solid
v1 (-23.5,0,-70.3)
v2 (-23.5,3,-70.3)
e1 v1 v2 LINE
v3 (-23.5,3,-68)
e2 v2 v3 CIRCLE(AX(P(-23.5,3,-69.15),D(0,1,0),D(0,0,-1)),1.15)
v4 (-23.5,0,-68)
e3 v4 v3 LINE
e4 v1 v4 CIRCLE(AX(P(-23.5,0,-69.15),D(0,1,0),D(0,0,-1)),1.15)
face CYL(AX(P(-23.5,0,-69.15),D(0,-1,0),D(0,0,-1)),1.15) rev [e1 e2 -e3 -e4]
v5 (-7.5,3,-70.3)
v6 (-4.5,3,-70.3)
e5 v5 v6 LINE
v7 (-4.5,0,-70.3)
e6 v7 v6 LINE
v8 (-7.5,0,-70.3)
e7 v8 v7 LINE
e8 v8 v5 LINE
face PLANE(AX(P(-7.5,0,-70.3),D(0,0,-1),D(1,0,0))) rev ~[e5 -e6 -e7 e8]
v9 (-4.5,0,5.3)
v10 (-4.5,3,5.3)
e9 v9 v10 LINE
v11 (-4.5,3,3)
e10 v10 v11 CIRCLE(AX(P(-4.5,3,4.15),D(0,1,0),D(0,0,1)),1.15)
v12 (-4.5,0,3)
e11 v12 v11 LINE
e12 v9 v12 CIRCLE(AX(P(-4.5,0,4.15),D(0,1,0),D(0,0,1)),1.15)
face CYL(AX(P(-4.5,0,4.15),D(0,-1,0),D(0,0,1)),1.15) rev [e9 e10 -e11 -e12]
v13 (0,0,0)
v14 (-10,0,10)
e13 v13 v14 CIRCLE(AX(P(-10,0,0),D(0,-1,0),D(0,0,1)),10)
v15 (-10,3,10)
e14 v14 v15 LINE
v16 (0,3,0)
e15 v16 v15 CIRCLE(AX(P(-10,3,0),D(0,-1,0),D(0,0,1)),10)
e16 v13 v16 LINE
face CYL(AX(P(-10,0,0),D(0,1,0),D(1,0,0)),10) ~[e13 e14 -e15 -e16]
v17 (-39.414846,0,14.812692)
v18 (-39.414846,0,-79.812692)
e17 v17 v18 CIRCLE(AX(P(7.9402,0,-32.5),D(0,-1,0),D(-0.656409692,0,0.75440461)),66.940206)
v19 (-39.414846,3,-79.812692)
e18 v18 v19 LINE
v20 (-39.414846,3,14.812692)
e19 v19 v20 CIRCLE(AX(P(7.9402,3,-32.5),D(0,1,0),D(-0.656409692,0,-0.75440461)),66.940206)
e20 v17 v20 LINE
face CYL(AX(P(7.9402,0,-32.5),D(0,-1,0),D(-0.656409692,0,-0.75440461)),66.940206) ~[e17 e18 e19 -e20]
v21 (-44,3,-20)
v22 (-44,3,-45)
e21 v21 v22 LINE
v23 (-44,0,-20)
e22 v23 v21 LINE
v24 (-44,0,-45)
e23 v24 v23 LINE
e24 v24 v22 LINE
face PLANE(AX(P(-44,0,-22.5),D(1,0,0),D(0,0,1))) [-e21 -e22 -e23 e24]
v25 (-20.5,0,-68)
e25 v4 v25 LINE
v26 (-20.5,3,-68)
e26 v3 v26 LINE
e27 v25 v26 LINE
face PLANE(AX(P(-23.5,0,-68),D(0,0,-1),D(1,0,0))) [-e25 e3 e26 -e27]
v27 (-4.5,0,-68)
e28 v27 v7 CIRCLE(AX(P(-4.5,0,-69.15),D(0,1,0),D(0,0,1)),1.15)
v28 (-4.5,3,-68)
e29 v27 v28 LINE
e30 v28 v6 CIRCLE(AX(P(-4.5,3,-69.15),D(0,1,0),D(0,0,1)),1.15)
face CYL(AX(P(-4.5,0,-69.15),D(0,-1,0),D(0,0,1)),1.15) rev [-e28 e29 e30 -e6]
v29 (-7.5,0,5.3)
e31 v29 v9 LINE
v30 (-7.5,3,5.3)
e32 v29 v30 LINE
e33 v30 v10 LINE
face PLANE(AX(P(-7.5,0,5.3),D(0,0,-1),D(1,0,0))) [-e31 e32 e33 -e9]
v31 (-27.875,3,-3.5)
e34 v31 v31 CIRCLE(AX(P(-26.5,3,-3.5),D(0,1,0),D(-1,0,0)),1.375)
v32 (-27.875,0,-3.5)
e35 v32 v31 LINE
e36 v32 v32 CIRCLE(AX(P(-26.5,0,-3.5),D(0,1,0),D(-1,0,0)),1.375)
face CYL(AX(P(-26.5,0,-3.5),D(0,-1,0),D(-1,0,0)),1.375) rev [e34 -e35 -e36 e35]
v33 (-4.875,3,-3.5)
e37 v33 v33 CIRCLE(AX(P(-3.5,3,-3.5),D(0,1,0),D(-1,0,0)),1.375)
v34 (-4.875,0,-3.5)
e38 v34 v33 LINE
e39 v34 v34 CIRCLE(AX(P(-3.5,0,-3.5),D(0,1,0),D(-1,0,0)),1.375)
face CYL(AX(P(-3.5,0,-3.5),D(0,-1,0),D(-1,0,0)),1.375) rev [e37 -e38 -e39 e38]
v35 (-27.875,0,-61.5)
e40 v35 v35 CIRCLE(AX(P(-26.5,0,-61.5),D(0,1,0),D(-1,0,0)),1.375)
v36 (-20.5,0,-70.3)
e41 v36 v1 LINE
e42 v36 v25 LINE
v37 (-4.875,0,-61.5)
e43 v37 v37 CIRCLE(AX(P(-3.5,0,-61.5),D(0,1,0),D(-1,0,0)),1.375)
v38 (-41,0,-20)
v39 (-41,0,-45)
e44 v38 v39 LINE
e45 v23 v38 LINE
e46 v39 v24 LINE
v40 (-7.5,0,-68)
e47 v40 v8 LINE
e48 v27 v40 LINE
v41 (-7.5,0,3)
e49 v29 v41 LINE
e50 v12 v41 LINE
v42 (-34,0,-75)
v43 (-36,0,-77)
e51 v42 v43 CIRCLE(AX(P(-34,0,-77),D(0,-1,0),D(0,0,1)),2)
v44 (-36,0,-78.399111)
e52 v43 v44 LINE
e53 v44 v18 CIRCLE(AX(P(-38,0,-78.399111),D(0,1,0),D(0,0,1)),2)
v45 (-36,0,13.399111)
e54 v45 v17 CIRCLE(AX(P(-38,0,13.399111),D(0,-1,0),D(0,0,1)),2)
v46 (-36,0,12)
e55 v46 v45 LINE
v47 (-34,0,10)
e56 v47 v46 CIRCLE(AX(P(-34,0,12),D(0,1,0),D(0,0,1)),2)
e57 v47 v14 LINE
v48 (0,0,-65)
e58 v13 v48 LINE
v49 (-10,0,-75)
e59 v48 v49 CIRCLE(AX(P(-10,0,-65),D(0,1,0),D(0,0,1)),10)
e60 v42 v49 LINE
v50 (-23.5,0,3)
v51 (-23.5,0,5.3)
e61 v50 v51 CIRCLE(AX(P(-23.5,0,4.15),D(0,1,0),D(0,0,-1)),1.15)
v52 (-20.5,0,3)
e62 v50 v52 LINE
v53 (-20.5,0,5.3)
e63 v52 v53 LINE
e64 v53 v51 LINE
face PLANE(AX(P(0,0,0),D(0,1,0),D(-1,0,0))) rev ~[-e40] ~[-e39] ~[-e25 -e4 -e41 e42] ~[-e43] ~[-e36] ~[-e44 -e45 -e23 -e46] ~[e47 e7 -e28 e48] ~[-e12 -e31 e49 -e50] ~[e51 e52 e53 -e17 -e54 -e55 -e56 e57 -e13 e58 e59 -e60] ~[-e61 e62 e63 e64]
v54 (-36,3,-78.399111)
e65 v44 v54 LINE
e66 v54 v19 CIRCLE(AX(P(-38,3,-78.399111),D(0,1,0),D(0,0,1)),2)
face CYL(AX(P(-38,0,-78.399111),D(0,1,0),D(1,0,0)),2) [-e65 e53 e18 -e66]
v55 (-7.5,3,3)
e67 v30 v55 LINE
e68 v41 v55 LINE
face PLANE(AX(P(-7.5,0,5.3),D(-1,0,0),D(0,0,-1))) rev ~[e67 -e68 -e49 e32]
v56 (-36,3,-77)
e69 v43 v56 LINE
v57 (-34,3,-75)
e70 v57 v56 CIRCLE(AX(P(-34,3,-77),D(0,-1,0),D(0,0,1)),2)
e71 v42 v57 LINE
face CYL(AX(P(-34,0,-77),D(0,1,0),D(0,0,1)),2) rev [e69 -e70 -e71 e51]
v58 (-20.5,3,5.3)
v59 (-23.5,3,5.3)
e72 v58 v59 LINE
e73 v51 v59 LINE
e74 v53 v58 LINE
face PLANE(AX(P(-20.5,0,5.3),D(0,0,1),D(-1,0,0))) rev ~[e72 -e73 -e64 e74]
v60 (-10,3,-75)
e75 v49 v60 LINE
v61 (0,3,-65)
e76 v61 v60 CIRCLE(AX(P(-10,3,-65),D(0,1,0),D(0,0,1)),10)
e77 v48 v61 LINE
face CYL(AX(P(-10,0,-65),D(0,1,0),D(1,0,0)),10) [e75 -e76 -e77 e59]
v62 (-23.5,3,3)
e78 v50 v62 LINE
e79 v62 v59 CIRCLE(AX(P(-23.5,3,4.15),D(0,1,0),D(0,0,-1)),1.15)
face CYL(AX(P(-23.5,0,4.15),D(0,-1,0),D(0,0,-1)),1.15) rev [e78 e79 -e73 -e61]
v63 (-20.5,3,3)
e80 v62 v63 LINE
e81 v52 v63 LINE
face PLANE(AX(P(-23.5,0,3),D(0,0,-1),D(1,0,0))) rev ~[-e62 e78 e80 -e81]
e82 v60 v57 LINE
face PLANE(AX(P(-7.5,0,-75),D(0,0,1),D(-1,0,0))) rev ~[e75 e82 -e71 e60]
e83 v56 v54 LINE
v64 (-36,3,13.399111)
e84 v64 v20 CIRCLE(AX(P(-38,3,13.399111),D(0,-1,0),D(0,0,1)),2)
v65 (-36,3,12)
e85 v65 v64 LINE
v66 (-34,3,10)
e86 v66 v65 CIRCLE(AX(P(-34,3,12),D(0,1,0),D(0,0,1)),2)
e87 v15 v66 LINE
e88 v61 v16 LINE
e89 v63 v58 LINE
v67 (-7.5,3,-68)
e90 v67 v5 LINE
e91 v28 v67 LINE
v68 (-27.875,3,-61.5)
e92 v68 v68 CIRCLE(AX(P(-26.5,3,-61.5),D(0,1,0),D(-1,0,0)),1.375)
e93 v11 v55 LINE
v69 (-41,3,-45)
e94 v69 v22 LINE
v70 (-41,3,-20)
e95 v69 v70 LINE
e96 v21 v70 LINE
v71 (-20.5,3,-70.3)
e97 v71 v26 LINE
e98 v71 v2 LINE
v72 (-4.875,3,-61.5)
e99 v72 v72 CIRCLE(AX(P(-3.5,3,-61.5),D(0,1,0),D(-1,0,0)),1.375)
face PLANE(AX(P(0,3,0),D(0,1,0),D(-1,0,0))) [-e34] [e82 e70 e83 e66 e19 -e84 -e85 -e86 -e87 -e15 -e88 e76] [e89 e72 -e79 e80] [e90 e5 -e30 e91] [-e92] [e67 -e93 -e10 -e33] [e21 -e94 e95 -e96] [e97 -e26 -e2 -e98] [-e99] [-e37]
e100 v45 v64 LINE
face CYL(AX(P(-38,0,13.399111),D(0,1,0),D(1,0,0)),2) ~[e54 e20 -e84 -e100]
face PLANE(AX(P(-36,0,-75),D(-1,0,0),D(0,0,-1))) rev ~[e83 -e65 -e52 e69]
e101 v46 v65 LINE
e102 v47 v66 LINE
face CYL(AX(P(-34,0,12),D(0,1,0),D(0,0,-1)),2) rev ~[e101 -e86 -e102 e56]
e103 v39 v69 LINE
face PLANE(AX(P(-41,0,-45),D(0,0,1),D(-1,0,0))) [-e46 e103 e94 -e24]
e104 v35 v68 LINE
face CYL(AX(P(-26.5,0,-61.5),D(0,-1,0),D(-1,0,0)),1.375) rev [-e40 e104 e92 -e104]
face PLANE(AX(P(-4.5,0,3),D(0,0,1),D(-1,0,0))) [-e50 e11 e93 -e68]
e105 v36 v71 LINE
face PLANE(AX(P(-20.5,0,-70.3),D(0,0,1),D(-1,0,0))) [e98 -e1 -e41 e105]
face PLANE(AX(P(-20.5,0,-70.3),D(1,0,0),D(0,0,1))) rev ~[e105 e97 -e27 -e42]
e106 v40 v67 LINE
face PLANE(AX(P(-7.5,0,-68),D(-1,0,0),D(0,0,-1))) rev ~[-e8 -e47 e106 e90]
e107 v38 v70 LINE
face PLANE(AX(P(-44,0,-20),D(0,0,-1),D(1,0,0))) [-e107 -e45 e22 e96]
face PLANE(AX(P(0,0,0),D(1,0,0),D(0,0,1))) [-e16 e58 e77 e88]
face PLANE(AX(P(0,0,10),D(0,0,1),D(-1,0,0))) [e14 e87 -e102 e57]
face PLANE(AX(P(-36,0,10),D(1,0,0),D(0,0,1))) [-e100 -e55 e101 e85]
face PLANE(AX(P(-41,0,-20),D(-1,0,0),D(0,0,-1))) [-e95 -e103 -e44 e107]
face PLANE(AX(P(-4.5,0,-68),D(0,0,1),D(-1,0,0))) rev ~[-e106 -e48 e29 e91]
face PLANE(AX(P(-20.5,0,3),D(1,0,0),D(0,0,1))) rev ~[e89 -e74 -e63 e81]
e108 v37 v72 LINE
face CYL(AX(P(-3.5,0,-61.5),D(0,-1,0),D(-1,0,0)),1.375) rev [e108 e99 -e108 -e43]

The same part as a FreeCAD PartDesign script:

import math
import FreeCAD as App
import Part
import Sketcher
from FreeCAD import Vector


def edges_at(feature, points):
    """Names of the edges that pass closest to the given points."""
    edges = feature.Shape.Edges
    near = lambda p: min(range(len(edges)), key=lambda i: edges[i].distToShape(Part.Vertex(*p))[0])
    return sorted({f"Edge{near(p) + 1}" for p in points})

doc = App.newDocument("Part")
body = doc.addObject("PartDesign::Body", "Body")

sketch1 = body.newObject("Sketcher::SketchObject", "Sketch")
sketch1.AttachmentSupport = (doc.getObject("XZ_Plane"), [""])
sketch1.MapMode = "FlatFace"
sketch1.addGeometry([
    Part.LineSegment(Vector(0, 10, 0), Vector(0, -75, 0)),
    Part.LineSegment(Vector(0, -75, 0), Vector(-36, -75, 0)),
    Part.LineSegment(Vector(-36, -75, 0), Vector(-36, -83, 0)),
    Part.ArcOfCircle(Part.Circle(Vector(7.9402, -32.5, 0), Vector(0, 0, 1), 66.940206), math.radians(131.026627), math.radians(228.973373)),
    Part.LineSegment(Vector(-36, 18, 0), Vector(-36, 10, 0)),
    Part.LineSegment(Vector(-36, 10, 0), Vector(0, 10, 0)),
    Part.LineSegment(Vector(-4.5, 5.3, 0), Vector(-7.5, 5.3, 0)),
    Part.LineSegment(Vector(-7.5, 5.3, 0), Vector(-7.5, 3, 0)),
    Part.LineSegment(Vector(-7.5, 3, 0), Vector(-4.5, 3, 0)),
    Part.ArcOfCircle(Part.Circle(Vector(-4.5, 4.15, 0), Vector(0, 0, 1), 1.15), math.radians(-90), math.radians(90)),
    Part.LineSegment(Vector(-20.5, 3, 0), Vector(-20.5, 5.3, 0)),
    Part.LineSegment(Vector(-20.5, 5.3, 0), Vector(-23.5, 5.3, 0)),
    Part.ArcOfCircle(Part.Circle(Vector(-23.5, 4.15, 0), Vector(0, 0, 1), 1.15), math.radians(90), math.radians(270)),
    Part.LineSegment(Vector(-23.5, 3, 0), Vector(-20.5, 3, 0)),
    Part.Circle(Vector(-3.5, -3.5, 0), Vector(0, 0, 1), 1.375),
    Part.Circle(Vector(-26.5, -3.5, 0), Vector(0, 0, 1), 1.375),
    Part.Circle(Vector(-3.5, -61.5, 0), Vector(0, 0, 1), 1.375),
    Part.LineSegment(Vector(-44, -20, 0), Vector(-44, -22.5, 0)),
    Part.LineSegment(Vector(-44, -22.5, 0), Vector(-41, -22.5, 0)),
    Part.LineSegment(Vector(-41, -22.5, 0), Vector(-41, -20, 0)),
    Part.LineSegment(Vector(-41, -20, 0), Vector(-44, -20, 0)),
    Part.Circle(Vector(-26.5, -61.5, 0), Vector(0, 0, 1), 1.375),
    Part.LineSegment(Vector(-20.5, -70.3, 0), Vector(-20.5, -68, 0)),
    Part.LineSegment(Vector(-20.5, -68, 0), Vector(-23.5, -68, 0)),
    Part.ArcOfCircle(Part.Circle(Vector(-23.5, -69.15, 0), Vector(0, 0, 1), 1.15), math.radians(90), math.radians(270)),
    Part.LineSegment(Vector(-23.5, -70.3, 0), Vector(-20.5, -70.3, 0)),
    Part.LineSegment(Vector(-7.5, -68, 0), Vector(-7.5, -70.3, 0)),
    Part.LineSegment(Vector(-7.5, -70.3, 0), Vector(-4.5, -70.3, 0)),
    Part.ArcOfCircle(Part.Circle(Vector(-4.5, -69.15, 0), Vector(0, 0, 1), 1.15), math.radians(-90), math.radians(90)),
    Part.LineSegment(Vector(-4.5, -68, 0), Vector(-7.5, -68, 0)),
    Part.LineSegment(Vector(-41, -45, 0), Vector(-41, -42.5, 0)),
    Part.LineSegment(Vector(-41, -42.5, 0), Vector(-44, -42.5, 0)),
    Part.LineSegment(Vector(-44, -42.5, 0), Vector(-44, -45, 0)),
    Part.LineSegment(Vector(-44, -45, 0), Vector(-41, -45, 0)),
], False)
sketch1.addConstraint([
    Sketcher.Constraint("Coincident", 0, 2, 1, 1),
    Sketcher.Constraint("Coincident", 1, 2, 2, 1),
    Sketcher.Constraint("Coincident", 2, 2, 3, 2),
    Sketcher.Constraint("Coincident", 3, 1, 4, 1),
    Sketcher.Constraint("Coincident", 4, 2, 5, 1),
    Sketcher.Constraint("Coincident", 5, 2, 0, 1),
    Sketcher.Constraint("Coincident", 6, 2, 7, 1),
    Sketcher.Constraint("Coincident", 7, 2, 8, 1),
    Sketcher.Constraint("Tangent", 8, 2, 9, 1),
    Sketcher.Constraint("Tangent", 9, 2, 6, 1),
    Sketcher.Constraint("Coincident", 10, 2, 11, 1),
    Sketcher.Constraint("Tangent", 11, 2, 12, 1),
    Sketcher.Constraint("Tangent", 12, 2, 13, 1),
    Sketcher.Constraint("Coincident", 13, 2, 10, 1),
    Sketcher.Constraint("Coincident", 17, 2, 18, 1),
    Sketcher.Constraint("Coincident", 18, 2, 19, 1),
    Sketcher.Constraint("Coincident", 19, 2, 20, 1),
    Sketcher.Constraint("Coincident", 20, 2, 17, 1),
    Sketcher.Constraint("Coincident", 22, 2, 23, 1),
    Sketcher.Constraint("Tangent", 23, 2, 24, 1),
    Sketcher.Constraint("Tangent", 24, 2, 25, 1),
    Sketcher.Constraint("Coincident", 25, 2, 22, 1),
    Sketcher.Constraint("Coincident", 26, 2, 27, 1),
    Sketcher.Constraint("Tangent", 27, 2, 28, 1),
    Sketcher.Constraint("Tangent", 28, 2, 29, 1),
    Sketcher.Constraint("Coincident", 29, 2, 26, 1),
    Sketcher.Constraint("Coincident", 30, 2, 31, 1),
    Sketcher.Constraint("Coincident", 31, 2, 32, 1),
    Sketcher.Constraint("Coincident", 32, 2, 33, 1),
    Sketcher.Constraint("Coincident", 33, 2, 30, 1),
    Sketcher.Constraint("Vertical", 0),
    Sketcher.Constraint("Horizontal", 1),
    Sketcher.Constraint("Vertical", 2),
    Sketcher.Constraint("Vertical", 4),
    Sketcher.Constraint("Horizontal", 5),
    Sketcher.Constraint("Horizontal", 6),
    Sketcher.Constraint("Vertical", 7),
    Sketcher.Constraint("Horizontal", 8),
    Sketcher.Constraint("Vertical", 10),
    Sketcher.Constraint("Horizontal", 11),
    Sketcher.Constraint("Horizontal", 13),
    Sketcher.Constraint("Vertical", 17),
    Sketcher.Constraint("Horizontal", 18),
    Sketcher.Constraint("Vertical", 19),
    Sketcher.Constraint("Horizontal", 20),
    Sketcher.Constraint("Vertical", 22),
    Sketcher.Constraint("Horizontal", 23),
    Sketcher.Constraint("Horizontal", 25),
    Sketcher.Constraint("Vertical", 26),
    Sketcher.Constraint("Horizontal", 27),
    Sketcher.Constraint("Horizontal", 29),
    Sketcher.Constraint("Vertical", 30),
    Sketcher.Constraint("Horizontal", 31),
    Sketcher.Constraint("Vertical", 32),
    Sketcher.Constraint("Horizontal", 33),
    Sketcher.Constraint("Equal", 9, 12),
    Sketcher.Constraint("Equal", 14, 15),
    Sketcher.Constraint("Equal", 15, 16),
    Sketcher.Constraint("Equal", 16, 21),
    Sketcher.Constraint("Equal", 12, 24),
    Sketcher.Constraint("Equal", 24, 28),
    Sketcher.Constraint("PointOnObject", 0, 2, -2),
    Sketcher.Constraint("Horizontal", 9, 3, 12, 3),
    Sketcher.Constraint("Horizontal", 14, 3, 15, 3),
    Sketcher.Constraint("Horizontal", 16, 3, 21, 3),
    Sketcher.Constraint("Horizontal", 24, 3, 28, 3),
    Sketcher.Constraint("Vertical", 14, 3, 16, 3),
    Sketcher.Constraint("Vertical", 15, 3, 21, 3),
    Sketcher.Constraint("Vertical", 12, 3, 24, 3),
    Sketcher.Constraint("Vertical", 9, 3, 28, 3),
    Sketcher.Constraint("Vertical", 2, 2, 3, 1),
    Sketcher.Constraint("Vertical", 13, 2, 22, 2),
    Sketcher.Constraint("Vertical", 7, 2, 26, 2),
    Sketcher.Constraint("Vertical", 19, 2, 30, 2),
    Sketcher.Constraint("Vertical", 20, 2, 31, 2),
    Sketcher.Constraint("Equal", 8, 11),
    Sketcher.Constraint("Equal", 13, 18),
    Sketcher.Constraint("Equal", 2, 4),
    Sketcher.Constraint("Equal", 19, 30),
    Sketcher.Constraint("Diameter", 14, 2.75),
    Sketcher.Constraint("DistanceX", 1, 2, 1, 1, 36.0),
    Sketcher.Constraint("DistanceX", 6, 2, 6, 1, 3.0),
    Sketcher.Constraint("DistanceY", 2, 2, 2, 1, 8.0),
    Sketcher.Constraint("Radius", 9, 1.15),
    Sketcher.Constraint("DistanceY", -1, 1, 4, 2, 10.0),
    Sketcher.Constraint("DistanceY", -1, 1, 7, 2, 3.0),
    Sketcher.Constraint("DistanceY", 19, 2, -1, 1, 20.0),
    Sketcher.Constraint("DistanceX", 12, 3, 14, 3, 20.0),
    Sketcher.Constraint("DistanceX", 15, 3, 12, 3, 3.0),
    Sketcher.Constraint("DistanceY", 16, 3, 14, 3, 58.0),
    Sketcher.Constraint("DistanceX", 10, 2, 6, 2, 13.0),
    Sketcher.Constraint("DistanceX", 17, 2, 4, 2, 8.0),
    Sketcher.Constraint("DistanceY", 1, 2, 22, 2, 7.0),
    Sketcher.Constraint("DistanceY", 30, 2, 18, 2, 20.0),
    Sketcher.Constraint("DistanceX", 14, 3, -1, 1, 3.5),
    Sketcher.Constraint("DistanceY", 14, 3, -1, 1, 3.5),
    Sketcher.Constraint("DistanceY", 0, 2, 0, 1, 85.0),
    Sketcher.Constraint("DistanceY", 17, 2, 17, 1, 2.5),
    Sketcher.Constraint("Radius", 3, 66.9402),
])
pad1 = body.newObject("PartDesign::Pad", "Pad")
pad1.Profile = sketch1
pad1.Length = 3
pad1.Reversed = True
doc.recompute()

fillet = body.newObject("PartDesign::Fillet", "Fillet")
fillet.Base = (pad1, edges_at(pad1, [(0, 1.5, -75), (0, 1.5, 10)]))
fillet.Radius = 10

sketch2 = body.newObject("Sketcher::SketchObject", "Sketch001")
sketch2.AttachmentSupport = (doc.getObject("XZ_Plane"), [""])
sketch2.MapMode = "FlatFace"
sketch2.addGeometry([
    Part.LineSegment(Vector(-44, -22.5, 0), Vector(-41, -22.5, 0)),
    Part.LineSegment(Vector(-41, -22.5, 0), Vector(-41, -42.5, 0)),
    Part.LineSegment(Vector(-41, -42.5, 0), Vector(-44, -42.5, 0)),
    Part.LineSegment(Vector(-44, -42.5, 0), Vector(-44, -22.5, 0)),
], False)
sketch2.addConstraint([
    Sketcher.Constraint("Coincident", 0, 2, 1, 1),
    Sketcher.Constraint("Coincident", 1, 2, 2, 1),
    Sketcher.Constraint("Coincident", 2, 2, 3, 1),
    Sketcher.Constraint("Coincident", 3, 2, 0, 1),
    Sketcher.Constraint("Horizontal", 0),
    Sketcher.Constraint("Vertical", 1),
    Sketcher.Constraint("Horizontal", 2),
    Sketcher.Constraint("Vertical", 3),
    Sketcher.Constraint("DistanceX", 0, 1, 0, 2, 3.0),
    Sketcher.Constraint("DistanceY", 1, 2, 1, 1, 20.0),
    Sketcher.Constraint("DistanceX", 0, 2, -1, 1, 41.0),
    Sketcher.Constraint("DistanceY", 0, 2, -1, 1, 22.5),
])
pocket1 = body.newObject("PartDesign::Pocket", "Pocket")
pocket1.Profile = sketch2
pocket1.Length = 3
doc.recompute()

fillet2 = body.newObject("PartDesign::Fillet", "Fillet001")
fillet2.Base = (pocket1, edges_at(pocket1, [
    (-36, 1.5, -83),
    (-36, 1.5, 18),
    (-36, 1.5, 10),
    (-36, 1.5, -75),
]))
fillet2.Radius = 2

doc.recompute()
